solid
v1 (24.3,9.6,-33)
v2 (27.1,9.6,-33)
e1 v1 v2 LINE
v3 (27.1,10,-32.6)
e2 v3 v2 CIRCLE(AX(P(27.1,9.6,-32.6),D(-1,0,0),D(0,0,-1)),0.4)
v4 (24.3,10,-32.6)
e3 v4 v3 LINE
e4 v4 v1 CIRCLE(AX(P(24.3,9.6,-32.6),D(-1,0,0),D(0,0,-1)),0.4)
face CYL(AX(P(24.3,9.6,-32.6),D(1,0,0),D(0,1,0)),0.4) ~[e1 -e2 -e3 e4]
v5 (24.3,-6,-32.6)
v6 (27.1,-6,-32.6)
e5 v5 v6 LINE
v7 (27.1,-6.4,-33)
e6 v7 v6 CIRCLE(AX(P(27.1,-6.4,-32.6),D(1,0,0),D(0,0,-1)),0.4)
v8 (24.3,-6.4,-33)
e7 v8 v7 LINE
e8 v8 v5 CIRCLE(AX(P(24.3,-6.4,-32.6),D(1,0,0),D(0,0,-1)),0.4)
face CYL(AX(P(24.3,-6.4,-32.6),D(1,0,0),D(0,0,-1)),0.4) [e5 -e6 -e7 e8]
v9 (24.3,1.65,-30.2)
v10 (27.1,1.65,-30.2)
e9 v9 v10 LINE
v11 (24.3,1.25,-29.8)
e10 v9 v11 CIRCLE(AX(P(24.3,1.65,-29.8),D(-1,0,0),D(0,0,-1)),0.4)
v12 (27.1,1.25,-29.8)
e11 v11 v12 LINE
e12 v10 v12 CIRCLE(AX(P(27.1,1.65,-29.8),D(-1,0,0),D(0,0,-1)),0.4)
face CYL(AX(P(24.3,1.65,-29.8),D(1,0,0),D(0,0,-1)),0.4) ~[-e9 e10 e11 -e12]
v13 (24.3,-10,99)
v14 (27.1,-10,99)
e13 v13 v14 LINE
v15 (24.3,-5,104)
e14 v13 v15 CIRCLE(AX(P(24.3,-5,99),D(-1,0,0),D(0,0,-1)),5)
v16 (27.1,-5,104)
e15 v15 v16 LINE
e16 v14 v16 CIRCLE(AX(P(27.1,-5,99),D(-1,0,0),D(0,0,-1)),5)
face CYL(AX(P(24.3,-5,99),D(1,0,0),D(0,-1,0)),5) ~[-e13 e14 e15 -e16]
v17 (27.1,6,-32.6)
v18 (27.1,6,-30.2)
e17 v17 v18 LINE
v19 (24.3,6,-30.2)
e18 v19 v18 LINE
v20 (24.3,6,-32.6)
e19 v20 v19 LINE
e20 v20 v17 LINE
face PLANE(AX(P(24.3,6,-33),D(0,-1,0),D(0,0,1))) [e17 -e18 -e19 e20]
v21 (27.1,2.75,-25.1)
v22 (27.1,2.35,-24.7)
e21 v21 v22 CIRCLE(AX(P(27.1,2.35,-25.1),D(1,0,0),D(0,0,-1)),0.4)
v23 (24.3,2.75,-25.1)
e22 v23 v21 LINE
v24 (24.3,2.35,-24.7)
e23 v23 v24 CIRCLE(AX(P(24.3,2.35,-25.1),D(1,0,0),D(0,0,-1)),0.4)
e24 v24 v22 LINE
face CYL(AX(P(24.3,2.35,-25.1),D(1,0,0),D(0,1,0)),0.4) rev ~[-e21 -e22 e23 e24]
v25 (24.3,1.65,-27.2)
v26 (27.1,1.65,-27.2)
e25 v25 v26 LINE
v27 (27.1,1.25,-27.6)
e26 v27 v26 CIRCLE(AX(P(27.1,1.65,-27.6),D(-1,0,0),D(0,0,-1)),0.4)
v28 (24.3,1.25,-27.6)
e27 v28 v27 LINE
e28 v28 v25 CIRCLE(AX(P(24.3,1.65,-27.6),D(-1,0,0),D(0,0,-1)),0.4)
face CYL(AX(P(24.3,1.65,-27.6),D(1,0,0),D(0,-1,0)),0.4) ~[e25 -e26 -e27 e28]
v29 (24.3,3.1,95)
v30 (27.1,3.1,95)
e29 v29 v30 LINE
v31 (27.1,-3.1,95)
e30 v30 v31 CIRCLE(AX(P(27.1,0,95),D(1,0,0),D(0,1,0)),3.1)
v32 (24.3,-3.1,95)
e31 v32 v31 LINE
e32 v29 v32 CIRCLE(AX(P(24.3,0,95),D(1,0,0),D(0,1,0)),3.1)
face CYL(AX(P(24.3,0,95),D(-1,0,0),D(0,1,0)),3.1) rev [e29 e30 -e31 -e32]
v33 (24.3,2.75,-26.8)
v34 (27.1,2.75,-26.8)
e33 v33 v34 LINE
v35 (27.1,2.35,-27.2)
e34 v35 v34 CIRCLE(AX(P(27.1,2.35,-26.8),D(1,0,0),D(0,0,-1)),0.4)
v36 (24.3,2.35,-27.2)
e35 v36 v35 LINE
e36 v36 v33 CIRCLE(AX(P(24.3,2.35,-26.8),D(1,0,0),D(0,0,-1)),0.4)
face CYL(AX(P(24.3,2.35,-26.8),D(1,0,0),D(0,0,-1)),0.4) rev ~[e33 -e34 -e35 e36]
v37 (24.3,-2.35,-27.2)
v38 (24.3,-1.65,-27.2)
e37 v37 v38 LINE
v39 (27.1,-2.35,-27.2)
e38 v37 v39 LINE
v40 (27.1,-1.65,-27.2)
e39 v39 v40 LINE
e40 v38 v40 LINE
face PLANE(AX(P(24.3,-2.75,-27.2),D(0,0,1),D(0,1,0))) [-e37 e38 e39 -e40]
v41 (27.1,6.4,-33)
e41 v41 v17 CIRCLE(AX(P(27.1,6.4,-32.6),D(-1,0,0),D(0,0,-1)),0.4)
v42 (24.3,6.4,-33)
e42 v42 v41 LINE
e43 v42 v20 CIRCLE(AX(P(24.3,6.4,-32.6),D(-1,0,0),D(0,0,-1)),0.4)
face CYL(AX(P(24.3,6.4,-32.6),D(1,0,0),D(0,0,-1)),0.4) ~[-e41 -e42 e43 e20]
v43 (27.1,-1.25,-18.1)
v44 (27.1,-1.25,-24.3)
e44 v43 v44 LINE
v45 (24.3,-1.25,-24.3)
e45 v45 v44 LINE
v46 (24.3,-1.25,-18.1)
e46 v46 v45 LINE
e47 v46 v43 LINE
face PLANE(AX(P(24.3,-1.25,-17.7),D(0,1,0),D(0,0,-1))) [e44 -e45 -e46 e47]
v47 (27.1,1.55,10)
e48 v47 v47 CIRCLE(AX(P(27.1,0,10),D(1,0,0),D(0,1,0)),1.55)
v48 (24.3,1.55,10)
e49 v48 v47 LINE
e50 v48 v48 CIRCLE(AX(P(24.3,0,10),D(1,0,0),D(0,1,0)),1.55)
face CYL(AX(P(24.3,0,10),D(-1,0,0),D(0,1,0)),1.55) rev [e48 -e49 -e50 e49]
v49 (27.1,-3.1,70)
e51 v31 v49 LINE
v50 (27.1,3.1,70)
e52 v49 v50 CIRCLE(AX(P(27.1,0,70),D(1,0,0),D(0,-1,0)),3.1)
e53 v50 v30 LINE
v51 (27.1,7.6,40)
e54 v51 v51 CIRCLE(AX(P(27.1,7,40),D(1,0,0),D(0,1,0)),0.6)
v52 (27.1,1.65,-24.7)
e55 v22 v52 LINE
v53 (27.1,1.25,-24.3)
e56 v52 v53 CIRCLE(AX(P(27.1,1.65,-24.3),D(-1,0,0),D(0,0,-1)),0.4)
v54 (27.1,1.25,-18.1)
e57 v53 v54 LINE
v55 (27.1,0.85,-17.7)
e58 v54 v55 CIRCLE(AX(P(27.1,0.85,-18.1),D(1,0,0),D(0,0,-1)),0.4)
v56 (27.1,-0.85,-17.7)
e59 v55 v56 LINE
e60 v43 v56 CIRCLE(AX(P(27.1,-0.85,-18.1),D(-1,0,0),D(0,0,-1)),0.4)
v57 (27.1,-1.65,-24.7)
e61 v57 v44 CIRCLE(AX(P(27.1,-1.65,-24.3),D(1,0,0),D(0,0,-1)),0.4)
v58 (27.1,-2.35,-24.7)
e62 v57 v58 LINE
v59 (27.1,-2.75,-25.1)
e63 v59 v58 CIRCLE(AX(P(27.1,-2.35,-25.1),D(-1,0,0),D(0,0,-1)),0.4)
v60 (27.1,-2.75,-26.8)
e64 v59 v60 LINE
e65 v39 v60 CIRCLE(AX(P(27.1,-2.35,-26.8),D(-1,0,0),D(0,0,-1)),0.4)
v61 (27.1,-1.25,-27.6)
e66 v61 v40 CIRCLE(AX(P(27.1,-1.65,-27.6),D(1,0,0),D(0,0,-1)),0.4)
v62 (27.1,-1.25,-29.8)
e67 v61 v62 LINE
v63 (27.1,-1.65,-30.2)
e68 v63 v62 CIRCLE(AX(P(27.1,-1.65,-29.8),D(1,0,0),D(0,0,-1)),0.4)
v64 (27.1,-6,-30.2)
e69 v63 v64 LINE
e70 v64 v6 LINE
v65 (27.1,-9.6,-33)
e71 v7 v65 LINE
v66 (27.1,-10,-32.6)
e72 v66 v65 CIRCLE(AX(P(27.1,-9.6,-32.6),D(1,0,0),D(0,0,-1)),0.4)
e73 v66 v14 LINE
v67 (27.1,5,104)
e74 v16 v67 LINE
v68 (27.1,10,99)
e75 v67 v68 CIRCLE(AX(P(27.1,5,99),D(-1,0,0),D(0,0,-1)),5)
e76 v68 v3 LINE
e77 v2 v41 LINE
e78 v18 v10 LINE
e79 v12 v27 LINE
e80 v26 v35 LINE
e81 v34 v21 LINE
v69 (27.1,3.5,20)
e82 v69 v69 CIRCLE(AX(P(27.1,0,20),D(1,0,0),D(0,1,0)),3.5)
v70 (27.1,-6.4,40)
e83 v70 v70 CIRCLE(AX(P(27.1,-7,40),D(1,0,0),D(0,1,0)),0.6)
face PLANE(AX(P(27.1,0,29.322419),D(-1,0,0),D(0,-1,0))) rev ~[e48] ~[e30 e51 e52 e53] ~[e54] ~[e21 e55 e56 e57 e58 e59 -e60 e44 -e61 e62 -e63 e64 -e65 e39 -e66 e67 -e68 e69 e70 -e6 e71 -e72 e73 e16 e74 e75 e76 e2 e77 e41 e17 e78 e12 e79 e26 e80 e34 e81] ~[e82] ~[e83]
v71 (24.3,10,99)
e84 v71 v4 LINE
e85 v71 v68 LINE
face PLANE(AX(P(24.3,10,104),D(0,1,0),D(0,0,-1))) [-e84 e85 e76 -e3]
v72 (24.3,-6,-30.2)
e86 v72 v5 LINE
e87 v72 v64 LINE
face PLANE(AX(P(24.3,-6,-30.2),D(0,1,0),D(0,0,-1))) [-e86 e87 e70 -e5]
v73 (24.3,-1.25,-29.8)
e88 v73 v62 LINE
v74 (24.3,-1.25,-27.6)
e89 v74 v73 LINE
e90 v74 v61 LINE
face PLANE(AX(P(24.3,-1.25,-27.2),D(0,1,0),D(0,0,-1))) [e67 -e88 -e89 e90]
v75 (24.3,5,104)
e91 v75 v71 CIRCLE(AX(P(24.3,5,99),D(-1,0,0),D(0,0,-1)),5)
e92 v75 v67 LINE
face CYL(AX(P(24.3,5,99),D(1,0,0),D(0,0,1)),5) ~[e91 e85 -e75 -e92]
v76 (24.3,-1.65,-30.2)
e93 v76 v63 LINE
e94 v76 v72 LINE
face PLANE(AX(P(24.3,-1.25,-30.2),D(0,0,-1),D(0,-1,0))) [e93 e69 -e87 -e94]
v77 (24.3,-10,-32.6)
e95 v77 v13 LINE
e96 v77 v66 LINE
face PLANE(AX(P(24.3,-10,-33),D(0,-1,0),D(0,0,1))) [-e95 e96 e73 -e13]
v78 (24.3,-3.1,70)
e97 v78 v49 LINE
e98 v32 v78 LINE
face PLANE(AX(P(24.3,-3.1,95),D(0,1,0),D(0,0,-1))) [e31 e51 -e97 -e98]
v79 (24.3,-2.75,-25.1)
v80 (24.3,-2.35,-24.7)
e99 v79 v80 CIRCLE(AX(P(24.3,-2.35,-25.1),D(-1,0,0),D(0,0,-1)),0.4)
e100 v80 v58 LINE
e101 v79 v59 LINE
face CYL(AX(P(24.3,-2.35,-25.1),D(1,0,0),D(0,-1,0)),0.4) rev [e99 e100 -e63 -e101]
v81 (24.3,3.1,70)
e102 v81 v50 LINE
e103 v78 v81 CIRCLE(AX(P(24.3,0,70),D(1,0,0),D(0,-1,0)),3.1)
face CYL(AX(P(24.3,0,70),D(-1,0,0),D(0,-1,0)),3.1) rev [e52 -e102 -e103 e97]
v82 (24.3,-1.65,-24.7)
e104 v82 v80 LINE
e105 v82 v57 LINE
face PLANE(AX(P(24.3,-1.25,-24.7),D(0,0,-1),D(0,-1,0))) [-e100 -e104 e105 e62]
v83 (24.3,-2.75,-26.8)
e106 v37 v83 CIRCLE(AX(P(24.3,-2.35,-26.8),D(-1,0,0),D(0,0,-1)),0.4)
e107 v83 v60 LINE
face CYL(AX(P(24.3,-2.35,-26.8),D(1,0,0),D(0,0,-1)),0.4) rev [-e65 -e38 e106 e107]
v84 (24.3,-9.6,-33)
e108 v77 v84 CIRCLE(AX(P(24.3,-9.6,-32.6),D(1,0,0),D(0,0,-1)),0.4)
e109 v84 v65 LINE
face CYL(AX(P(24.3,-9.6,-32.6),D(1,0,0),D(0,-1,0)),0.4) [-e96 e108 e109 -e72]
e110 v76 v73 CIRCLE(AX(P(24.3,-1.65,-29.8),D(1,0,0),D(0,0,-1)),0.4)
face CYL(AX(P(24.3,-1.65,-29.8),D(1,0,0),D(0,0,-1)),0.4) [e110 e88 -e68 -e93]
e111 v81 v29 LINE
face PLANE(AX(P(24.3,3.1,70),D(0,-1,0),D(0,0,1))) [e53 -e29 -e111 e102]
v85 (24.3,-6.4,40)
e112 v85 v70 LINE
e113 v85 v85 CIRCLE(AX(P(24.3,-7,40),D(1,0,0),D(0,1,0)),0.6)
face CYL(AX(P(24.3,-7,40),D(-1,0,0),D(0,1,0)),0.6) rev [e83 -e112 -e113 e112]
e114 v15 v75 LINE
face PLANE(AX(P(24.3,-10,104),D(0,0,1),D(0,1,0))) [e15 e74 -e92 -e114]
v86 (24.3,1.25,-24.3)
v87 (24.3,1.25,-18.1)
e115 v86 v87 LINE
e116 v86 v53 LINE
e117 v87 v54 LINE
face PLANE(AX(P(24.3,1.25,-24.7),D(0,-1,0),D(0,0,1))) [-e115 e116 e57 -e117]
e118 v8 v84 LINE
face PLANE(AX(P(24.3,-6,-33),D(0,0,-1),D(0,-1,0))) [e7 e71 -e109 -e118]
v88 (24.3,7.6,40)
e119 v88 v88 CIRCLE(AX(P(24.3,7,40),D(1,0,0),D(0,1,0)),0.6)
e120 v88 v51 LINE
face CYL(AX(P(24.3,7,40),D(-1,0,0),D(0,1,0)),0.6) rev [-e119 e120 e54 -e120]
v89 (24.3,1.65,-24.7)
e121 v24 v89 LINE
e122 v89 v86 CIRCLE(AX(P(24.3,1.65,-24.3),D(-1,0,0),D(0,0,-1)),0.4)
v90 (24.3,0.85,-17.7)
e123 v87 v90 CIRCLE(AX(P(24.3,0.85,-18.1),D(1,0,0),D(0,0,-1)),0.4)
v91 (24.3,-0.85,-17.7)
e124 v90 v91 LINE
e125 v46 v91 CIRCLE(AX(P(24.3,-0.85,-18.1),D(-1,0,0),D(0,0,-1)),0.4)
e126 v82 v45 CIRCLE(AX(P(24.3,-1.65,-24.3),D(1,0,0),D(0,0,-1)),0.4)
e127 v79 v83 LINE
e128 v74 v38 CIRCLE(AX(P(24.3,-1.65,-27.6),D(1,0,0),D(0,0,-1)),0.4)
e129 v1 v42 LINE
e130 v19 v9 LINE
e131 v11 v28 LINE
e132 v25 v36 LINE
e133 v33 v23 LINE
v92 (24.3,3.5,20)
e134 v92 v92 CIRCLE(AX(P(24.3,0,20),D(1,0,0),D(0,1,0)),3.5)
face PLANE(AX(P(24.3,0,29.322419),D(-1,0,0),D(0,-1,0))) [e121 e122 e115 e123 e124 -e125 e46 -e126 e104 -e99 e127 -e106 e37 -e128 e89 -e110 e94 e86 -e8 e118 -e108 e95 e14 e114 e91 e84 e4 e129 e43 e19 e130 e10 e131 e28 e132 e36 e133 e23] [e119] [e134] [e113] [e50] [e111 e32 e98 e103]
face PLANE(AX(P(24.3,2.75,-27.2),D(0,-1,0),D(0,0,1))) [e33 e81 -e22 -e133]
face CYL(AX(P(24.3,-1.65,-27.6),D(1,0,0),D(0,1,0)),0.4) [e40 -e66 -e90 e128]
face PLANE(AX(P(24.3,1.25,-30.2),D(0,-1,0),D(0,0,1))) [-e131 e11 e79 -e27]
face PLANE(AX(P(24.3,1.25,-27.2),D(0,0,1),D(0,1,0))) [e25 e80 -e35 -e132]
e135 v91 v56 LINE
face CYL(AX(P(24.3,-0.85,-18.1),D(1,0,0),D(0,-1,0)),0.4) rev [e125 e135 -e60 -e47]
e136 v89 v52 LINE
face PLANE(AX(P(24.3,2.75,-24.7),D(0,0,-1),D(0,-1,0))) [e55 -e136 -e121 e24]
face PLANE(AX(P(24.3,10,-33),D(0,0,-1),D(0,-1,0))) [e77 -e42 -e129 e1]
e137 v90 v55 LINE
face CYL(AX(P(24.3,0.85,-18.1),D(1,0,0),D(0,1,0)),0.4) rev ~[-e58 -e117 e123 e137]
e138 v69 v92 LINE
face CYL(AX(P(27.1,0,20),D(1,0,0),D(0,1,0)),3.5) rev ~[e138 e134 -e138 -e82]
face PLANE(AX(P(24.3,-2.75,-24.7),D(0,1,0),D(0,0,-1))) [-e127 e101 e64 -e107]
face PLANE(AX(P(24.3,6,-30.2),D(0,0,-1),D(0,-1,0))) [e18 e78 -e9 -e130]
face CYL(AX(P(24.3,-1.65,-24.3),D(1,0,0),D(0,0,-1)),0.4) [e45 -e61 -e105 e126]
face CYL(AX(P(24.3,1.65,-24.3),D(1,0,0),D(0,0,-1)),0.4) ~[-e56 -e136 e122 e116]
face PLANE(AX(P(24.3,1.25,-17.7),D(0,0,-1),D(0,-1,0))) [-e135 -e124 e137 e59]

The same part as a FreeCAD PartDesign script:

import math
import FreeCAD as App
import Part
import Sketcher

V = App.Vector
Q = App.Units.Quantity


def edges_at(feature, points):
    """Names of the edges that pass closest to the given points."""
    edges = feature.Shape.Edges
    near = lambda p: min(range(len(edges)), key=lambda i: edges[i].distToShape(Part.Vertex(*p))[0])
    return sorted({f"Edge{near(p) + 1}" for p in points})


def add_polygon(sketch, points):
    """Adds a closed chain of lines whose ends are joined by coincident constraints."""
    first, n = sketch.GeometryCount, len(points)
    for a, b in zip(points, points[1:] + points[:1]):
        sketch.addGeometry(Part.LineSegment(App.Vector(*a, 0), App.Vector(*b, 0)), False)
    for i in range(n):
        sketch.addConstraint(Sketcher.Constraint("Coincident", first + i, 2, first + (i + 1) % n, 1))

doc = App.newDocument("Part")
body = doc.addObject("PartDesign::Body", "Body")

sketch1 = body.newObject("Sketcher::SketchObject", "Sketch")
sketch1.AttachmentSupport = (doc.getObject("YZ_Plane"), [""])
sketch1.MapMode = "FlatFace"
sketch1.AttachmentOffset = App.Placement(V(0, 0, -24.3), App.Rotation())
add_polygon(sketch1, [(-10, 84), (10, 84), (10, -53), (6, -53), (6, -50.2), (1.2, -50.2), (1.2, -47.2), (2.8, -47.2), (2.8, -44.7), (1.2, -44.7), (1.2, -37.7), (-1.2, -37.7), (-1.2, -44.7), (-2.8, -44.7), (-2.8, -47.2), (-1.2, -47.2), (-1.2, -50.2), (-6, -50.2), (-6, -53), (-10, -53)])
sketch1.addGeometry(Part.Circle(V(0, -10, 0), V(0, 0, 1), 1.6), False)
sketch1.addGeometry(Part.Circle(V(-7, 20, 0), V(0, 0, 1), 0.6), False)
sketch1.addGeometry(Part.Circle(V(7, 20, 0), V(0, 0, 1), 0.6), False)
sketch1.addGeometry(Part.LineSegment(V(-3.1, 75, 0), V(-3.1, 50, 0)), False)
sketch1.addGeometry(Part.ArcOfCircle(Part.Circle(V(0, 50, 0), V(0, 0, 1), 3.1), math.radians(180), math.radians(360)), False)
sketch1.addGeometry(Part.LineSegment(V(3.1, 50, 0), V(3.1, 75, 0)), False)
sketch1.addGeometry(Part.ArcOfCircle(Part.Circle(V(0, 75, 0), V(0, 0, 1), 3.1), math.radians(0), math.radians(180)), False)
sketch1.addConstraint([
    Sketcher.Constraint("Tangent", 23, 2, 24, 1),
    Sketcher.Constraint("Tangent", 24, 2, 25, 1),
    Sketcher.Constraint("Tangent", 25, 2, 26, 1),
    Sketcher.Constraint("Tangent", 26, 2, 23, 1),
    Sketcher.Constraint("Horizontal", 0),
    Sketcher.Constraint("Vertical", 1),
    Sketcher.Constraint("Horizontal", 2),
    Sketcher.Constraint("Vertical", 3),
    Sketcher.Constraint("Horizontal", 4),
    Sketcher.Constraint("Vertical", 5),
    Sketcher.Constraint("Horizontal", 6),
    Sketcher.Constraint("Vertical", 7),
    Sketcher.Constraint("Horizontal", 8),
    Sketcher.Constraint("Vertical", 9),
    Sketcher.Constraint("Horizontal", 10),
    Sketcher.Constraint("Vertical", 11),
    Sketcher.Constraint("Horizontal", 12),
    Sketcher.Constraint("Vertical", 13),
    Sketcher.Constraint("Horizontal", 14),
    Sketcher.Constraint("Vertical", 15),
    Sketcher.Constraint("Horizontal", 16),
    Sketcher.Constraint("Vertical", 17),
    Sketcher.Constraint("Horizontal", 18),
    Sketcher.Constraint("Vertical", 19),
    Sketcher.Constraint("Vertical", 23),
    Sketcher.Constraint("Vertical", 25),
    Sketcher.Constraint("Equal", 21, 22),
    Sketcher.Constraint("Symmetric", 21, 3, 22, 3, -2),
    Sketcher.Constraint("Symmetric", 8, 2, 11, 2, -2),
    Sketcher.Constraint("Symmetric", 6, 2, 13, 2, -2),
    Sketcher.Constraint("Symmetric", 4, 2, 15, 2, -2),
    Sketcher.Constraint("Symmetric", 2, 2, 17, 2, -2),
    Sketcher.Constraint("PointOnObject", 20, 3, -2),
    Sketcher.Constraint("PointOnObject", 24, 3, -2),
    Sketcher.Constraint("Vertical", 5, 2, 8, 2),
    Sketcher.Constraint("Equal", 2, 18),
    Sketcher.Constraint("Equal", 10, 7),
    Sketcher.Constraint("Diameter", 20, Q("3.1 mm")),
    Sketcher.Constraint("Diameter", 21, Q("1.2 mm")),
    Sketcher.Constraint("Radius", 24, Q("3.1 mm")),
    Sketcher.Constraint("DistanceX", 0, 1, 0, 2, Q("20 mm")),
    Sketcher.Constraint("DistanceX", 2, 2, 2, 1, Q("4 mm")),
    Sketcher.Constraint("DistanceY", 1, 2, 1, 1, Q("137 mm")),
    Sketcher.Constraint("DistanceY", 5, 1, 5, 2, Q("3 mm")),
    Sketcher.Constraint("DistanceY", 9, 1, 9, 2, Q("7 mm")),
    Sketcher.Constraint("DistanceY", 23, 2, 23, 1, Q("25 mm")),
    Sketcher.Constraint("DistanceX", 6, 1, 6, 2, Q("1.5 mm")),
    Sketcher.Constraint("DistanceX", 10, 2, 10, 1, Q("2.5 mm")),
    Sketcher.Constraint("DistanceY", 3, 1, 3, 2, Q("2.8 mm")),
    Sketcher.Constraint("DistanceY", 20, 3, -1, 1, Q("10 mm")),
    Sketcher.Constraint("DistanceX", 21, 3, -1, 1, Q("7 mm")),
    Sketcher.Constraint("DistanceY", -1, 1, 21, 3, Q("20 mm")),
    Sketcher.Constraint("DistanceY", -1, 1, 24, 3, Q("50 mm")),
    Sketcher.Constraint("DistanceY", -1, 1, 0, 2, Q("84 mm")),
])
pad1 = body.newObject("PartDesign::Pad", "Pad")
pad1.Profile = sketch1
pad1.Length = 2.8
pad1.Reversed = True
doc.recompute()

fillet = body.newObject("PartDesign::Fillet", "Fillet")
fillet.Base = (pad1, edges_at(pad1, [
    (-25.7, 10, -53),
    (-25.7, 6, -53),
    (-25.7, -10, -53),
    (-25.7, -6, -53),
    (-25.7, 1.25, -50.2),
    (-25.7, -1.25, -50.2),
    (-25.7, 1.25, -37.7),
    (-25.7, -1.25, -37.7),
    (-25.7, 1.25, -47.2),
    (-25.7, -1.25, -47.2),
    (-25.7, 1.25, -44.7),
    (-25.7, -1.25, -44.7),
    (-25.7, -2.75, -47.2),
    (-25.7, 2.75, -47.2),
    (-25.7, 2.75, -44.7),
    (-25.7, -2.75, -44.7),
]))
fillet.Radius = 0.4
doc.recompute()

fillet2 = body.newObject("PartDesign::Fillet", "Fillet001")
fillet2.Base = (fillet, edges_at(fillet, [(-25.7, 10, 84), (-25.7, -10, 84)]))
fillet2.Radius = 5

sketch2 = body.newObject("Sketcher::SketchObject", "Sketch001")
sketch2.AttachmentSupport = (doc.getObject("YZ_Plane"), [""])
sketch2.MapMode = "FlatFace"
sketch2.AttachmentOffset = App.Placement(V(0, 0, -27.1), App.Rotation())
sketch2.addGeometry(Part.Circle(V(0, 0, 0), V(0, 0, 1), 3.5), False)
sketch2.addConstraint([
    Sketcher.Constraint("Coincident", 0, 3, -1, 1),
    Sketcher.Constraint("Diameter", 0, Q("7 mm")),
])
pocket1 = body.newObject("PartDesign::Pocket", "Pocket")
pocket1.Profile = sketch2
pocket1.Type = "ThroughAll"
pocket1.Reversed = True
body2 = doc.addObject("PartDesign::Body", "Body001")
doc.recompute()

body.Placement = App.Placement(V(0, 0, 20), App.Rotation(V(0, 0, 1), 180))
boolean = body2.newObject("PartDesign::Boolean", "Boolean")
boolean.Type = "Fuse"
boolean.addObjects([body])

doc.recompute()
